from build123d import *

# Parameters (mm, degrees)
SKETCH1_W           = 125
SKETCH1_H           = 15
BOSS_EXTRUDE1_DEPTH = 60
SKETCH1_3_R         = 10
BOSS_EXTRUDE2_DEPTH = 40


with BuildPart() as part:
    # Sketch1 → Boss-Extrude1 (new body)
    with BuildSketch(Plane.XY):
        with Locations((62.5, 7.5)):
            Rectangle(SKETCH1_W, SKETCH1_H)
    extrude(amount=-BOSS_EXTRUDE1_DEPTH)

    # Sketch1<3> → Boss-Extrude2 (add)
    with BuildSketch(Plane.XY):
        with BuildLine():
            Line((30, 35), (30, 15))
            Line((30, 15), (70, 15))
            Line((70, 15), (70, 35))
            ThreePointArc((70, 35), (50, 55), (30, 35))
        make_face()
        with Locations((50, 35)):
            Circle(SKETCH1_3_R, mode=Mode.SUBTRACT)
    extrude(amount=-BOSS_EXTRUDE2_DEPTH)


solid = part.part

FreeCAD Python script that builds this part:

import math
import FreeCAD as App
import Part
import Sketcher
Q = App.Units.Quantity


def add_polygon(sketch, points):
    """Adds a closed chain of lines whose ends are joined by coincident constraints."""
    first, n = sketch.GeometryCount, len(points)
    for a, b in zip(points, points[1:] + points[:1]):
        sketch.addGeometry(Part.LineSegment(App.Vector(*a, 0), App.Vector(*b, 0)), False)
    for i in range(n):
        sketch.addConstraint(Sketcher.Constraint("Coincident", first + i, 2, first + (i + 1) % n, 1))

doc = App.newDocument("Part")
params = doc.addObject("Spreadsheet::Sheet", "Params")
for row, (alias, value) in enumerate([
    ("sketch1_width", "125 mm"),
    ("sketch1_height", "15 mm"),
    ("pad1_length", "60 mm"),
    ("sketch2_diameter", "20 mm"),
    ("sketch2_radius", "20 mm"),
    ("sketch2_height", "20 mm"),
    ("pad2_length", "40 mm"),
], start=1):
    params.set(f"A{row}", alias)
    params.set(f"B{row}", "=" + value)
    params.setAlias(f"B{row}", alias)

body = doc.addObject("PartDesign::Body", "Body")

# Sketch on XY plane
sketch1 = body.newObject("Sketcher::SketchObject", "Sketch")
sketch1.AttachmentSupport = (doc.getObject("XY_Plane"), [""])
sketch1.MapMode = "FlatFace"
add_polygon(sketch1, [(0, 15), (0, 0), (125, 0), (125, 15)])  # lines 0-3
sketch1.addConstraint([
    Sketcher.Constraint("Vertical", 0),
    Sketcher.Constraint("Horizontal", 1),
    Sketcher.Constraint("Vertical", 2),
    Sketcher.Constraint("Horizontal", 3),
    Sketcher.Constraint("Coincident", 0, 2, -1, 1),
    Sketcher.Constraint("DistanceX", 1, 1, 1, 2, Q("125 mm")),
    Sketcher.Constraint("DistanceY", 0, 2, 0, 1, Q("15 mm")),
])
sketch1.setExpression("Constraints[9]", "Params.sketch1_width")
sketch1.setExpression("Constraints[10]", "Params.sketch1_height")
pad1 = body.newObject("PartDesign::Pad", "Pad")
pad1.Profile = sketch1
pad1.setExpression("Length", "Params.pad1_length")
pad1.Reversed = True

# Sketch on XY plane
sketch2 = body.newObject("Sketcher::SketchObject", "Sketch001")
sketch2.AttachmentSupport = (doc.getObject("XY_Plane"), [""])
sketch2.MapMode = "FlatFace"
sketch2.addGeometry([
    Part.LineSegment(App.Vector(30, 35, 0), App.Vector(30, 15, 0)),  # 0
    Part.LineSegment(App.Vector(30, 15, 0), App.Vector(70, 15, 0)),  # 1
    Part.LineSegment(App.Vector(70, 15, 0), App.Vector(70, 35, 0)),  # 2
    Part.ArcOfCircle(Part.Circle(App.Vector(50, 35, 0), App.Vector(0, 0, 1), 20), math.radians(0), math.radians(180)),  # 3
    Part.Circle(App.Vector(50, 35, 0), App.Vector(0, 0, 1), 10),  # 4
], False)
sketch2.addConstraint([
    Sketcher.Constraint("Coincident", 0, 2, 1, 1),
    Sketcher.Constraint("Coincident", 1, 2, 2, 1),
    Sketcher.Constraint("Tangent", 2, 2, 3, 1),
    Sketcher.Constraint("Tangent", 3, 2, 0, 1),
    Sketcher.Constraint("Vertical", 0),
    Sketcher.Constraint("Horizontal", 1),
    Sketcher.Constraint("Vertical", 2),
    Sketcher.Constraint("Coincident", 4, 3, 3, 3),
    Sketcher.Constraint("Diameter", 4, Q("20 mm")),
    Sketcher.Constraint("Radius", 3, Q("20 mm")),
    Sketcher.Constraint("DistanceY", 0, 2, 0, 1, Q("20 mm")),
    Sketcher.Constraint("DistanceX", -1, 1, 3, 3, Q("50 mm")),
    Sketcher.Constraint("DistanceY", -1, 1, 3, 3, Q("35 mm")),
])
sketch2.setExpression("Constraints[8]", "Params.sketch2_diameter")
sketch2.setExpression("Constraints[9]", "Params.sketch2_radius")
sketch2.setExpression("Constraints[10]", "Params.sketch2_height")
pad2 = body.newObject("PartDesign::Pad", "Pad001")
pad2.Profile = sketch2
pad2.setExpression("Length", "Params.pad2_length")
pad2.Reversed = True

doc.recompute()
